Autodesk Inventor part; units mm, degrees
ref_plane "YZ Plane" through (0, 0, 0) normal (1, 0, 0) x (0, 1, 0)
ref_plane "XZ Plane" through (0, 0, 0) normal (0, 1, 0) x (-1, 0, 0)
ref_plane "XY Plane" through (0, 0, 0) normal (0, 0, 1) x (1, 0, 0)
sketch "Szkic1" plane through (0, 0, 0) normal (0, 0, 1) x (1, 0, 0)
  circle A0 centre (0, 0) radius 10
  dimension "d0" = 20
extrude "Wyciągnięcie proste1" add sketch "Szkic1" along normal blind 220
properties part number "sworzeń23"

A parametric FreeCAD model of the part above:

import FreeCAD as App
import Part
import Sketcher

V = App.Vector

doc = App.newDocument("Part")
body = doc.addObject("PartDesign::Body", "Body")

# Sketch on XY plane
sketch1 = doc.addObject("Sketcher::SketchObject", "Sketch")
body.addObject(sketch1)
sketch1.AttachmentSupport = (doc.XY_Plane, [""])
sketch1.MapMode = "FlatFace"
sketch1.addGeometry(Part.Circle(V(0, 0, 0), V(0, 0, 1), 10), False)
sketch1.addConstraint(Sketcher.Constraint("Coincident", 0, 3, -1, 1))
sketch1.addConstraint(Sketcher.Constraint("Diameter", 0, 20.0))
pad1 = doc.addObject("PartDesign::Pad", "Pad")
body.addObject(pad1)
pad1.Profile = sketch1
pad1.Length = 220

doc.recompute()
